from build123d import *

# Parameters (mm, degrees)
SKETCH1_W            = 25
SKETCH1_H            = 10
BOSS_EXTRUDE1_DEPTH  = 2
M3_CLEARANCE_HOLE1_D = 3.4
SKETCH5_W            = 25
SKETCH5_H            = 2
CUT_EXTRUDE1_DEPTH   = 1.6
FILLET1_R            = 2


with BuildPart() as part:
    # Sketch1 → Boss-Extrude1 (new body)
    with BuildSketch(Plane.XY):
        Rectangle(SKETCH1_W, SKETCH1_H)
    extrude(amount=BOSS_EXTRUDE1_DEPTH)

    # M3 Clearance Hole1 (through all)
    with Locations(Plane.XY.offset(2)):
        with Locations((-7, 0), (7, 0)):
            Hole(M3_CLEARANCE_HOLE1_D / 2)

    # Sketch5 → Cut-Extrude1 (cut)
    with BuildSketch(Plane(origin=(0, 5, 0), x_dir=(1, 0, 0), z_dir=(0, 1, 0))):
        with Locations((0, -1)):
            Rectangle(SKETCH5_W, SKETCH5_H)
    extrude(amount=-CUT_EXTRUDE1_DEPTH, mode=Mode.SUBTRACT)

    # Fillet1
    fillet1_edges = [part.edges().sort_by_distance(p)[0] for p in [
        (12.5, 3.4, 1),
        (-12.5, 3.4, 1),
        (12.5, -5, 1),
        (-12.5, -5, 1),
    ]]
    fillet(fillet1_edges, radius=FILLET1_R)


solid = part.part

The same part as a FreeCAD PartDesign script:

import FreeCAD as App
import Part
import Sketcher
Q = App.Units.Quantity


def edges_at(feature, points):
    """Names of the edges that pass closest to the given points."""
    edges = feature.Shape.Edges
    near = lambda p: min(range(len(edges)), key=lambda i: edges[i].distToShape(Part.Vertex(*p))[0])
    return sorted({f"Edge{near(p) + 1}" for p in points})


def add_polygon(sketch, points):
    """Adds a closed chain of lines whose ends are joined by coincident constraints."""
    first, n = sketch.GeometryCount, len(points)
    for a, b in zip(points, points[1:] + points[:1]):
        sketch.addGeometry(Part.LineSegment(App.Vector(*a, 0), App.Vector(*b, 0)), False)
    for i in range(n):
        sketch.addConstraint(Sketcher.Constraint("Coincident", first + i, 2, first + (i + 1) % n, 1))

doc = App.newDocument("Part")
body = doc.addObject("PartDesign::Body", "Body")

sketch1 = body.newObject("Sketcher::SketchObject", "Sketch")
sketch1.AttachmentSupport = (doc.getObject("XY_Plane"), [""])
sketch1.MapMode = "FlatFace"
add_polygon(sketch1, [(-12.5, 5), (-12.5, -5), (12.5, -5), (12.5, 5)])
sketch1.addConstraint([
    Sketcher.Constraint("Vertical", 0),
    Sketcher.Constraint("Horizontal", 1),
    Sketcher.Constraint("Vertical", 2),
    Sketcher.Constraint("Horizontal", 3),
    Sketcher.Constraint("Symmetric", 0, 2, 2, 2, -1, 1),
    Sketcher.Constraint("DistanceX", 1, 1, 1, 2, Q("25 mm")),
    Sketcher.Constraint("DistanceY", 0, 2, 0, 1, Q("10 mm")),
])
pad1 = body.newObject("PartDesign::Pad", "Pad")
pad1.Profile = sketch1
pad1.Length = 2

sketch2 = body.newObject("Sketcher::SketchObject", "Sketch001")
sketch2.AttachmentSupport = (doc.getObject("XY_Plane"), [""])
sketch2.MapMode = "FlatFace"
sketch2.AttachmentOffset = App.Placement(App.Vector(0, 0, 2), App.Rotation())
sketch2.addGeometry([
    Part.Circle(App.Vector(-7, 0, 0), App.Vector(0, 0, 1), 1.7),
    Part.Circle(App.Vector(7, 0, 0), App.Vector(0, 0, 1), 1.7),
], False)
sketch2.addConstraint([
    Sketcher.Constraint("Equal", 0, 1),
    Sketcher.Constraint("Symmetric", 0, 3, 1, 3, -1, 1),
    Sketcher.Constraint("PointOnObject", 0, 3, -1),
    Sketcher.Constraint("Diameter", 0, Q("3.4 mm")),
    Sketcher.Constraint("DistanceX", 0, 3, -1, 1, Q("7 mm")),
])
doc.recompute()
hole = body.newObject("PartDesign::Hole", "Hole")
hole.Profile = sketch2
hole.ThreadType = "None"
hole.Diameter = 3.4
hole.DepthType = "ThroughAll"

sketch3 = body.newObject("Sketcher::SketchObject", "Sketch002")
sketch3.AttachmentSupport = (doc.getObject("XZ_Plane"), [""])
sketch3.MapMode = "FlatFace"
sketch3.AttachmentOffset = App.Placement(App.Vector(0, 0, -5), App.Rotation())
add_polygon(sketch3, [(-12.5, 0), (-12.5, 2), (12.5, 2), (12.5, 0)])
sketch3.addConstraint([
    Sketcher.Constraint("Vertical", 0),
    Sketcher.Constraint("Horizontal", 1),
    Sketcher.Constraint("Vertical", 2),
    Sketcher.Constraint("Horizontal", 3),
    Sketcher.Constraint("Symmetric", 2, 2, 3, 2, -1, 1),
    Sketcher.Constraint("DistanceX", 1, 1, 1, 2, Q("25 mm")),
    Sketcher.Constraint("DistanceY", 0, 1, 0, 2, Q("2 mm")),
])
pocket1 = body.newObject("PartDesign::Pocket", "Pocket")
pocket1.Profile = sketch3
pocket1.Length = 1.6
pocket1.Reversed = True
doc.recompute()

fillet = body.newObject("PartDesign::Fillet", "Fillet")
fillet.Base = (pocket1, edges_at(pocket1, [
    (12.5, 3.4, 1),
    (-12.5, 3.4, 1),
    (12.5, -5, 1),
    (-12.5, -5, 1),
]))
fillet.Radius = 2

doc.recompute()
